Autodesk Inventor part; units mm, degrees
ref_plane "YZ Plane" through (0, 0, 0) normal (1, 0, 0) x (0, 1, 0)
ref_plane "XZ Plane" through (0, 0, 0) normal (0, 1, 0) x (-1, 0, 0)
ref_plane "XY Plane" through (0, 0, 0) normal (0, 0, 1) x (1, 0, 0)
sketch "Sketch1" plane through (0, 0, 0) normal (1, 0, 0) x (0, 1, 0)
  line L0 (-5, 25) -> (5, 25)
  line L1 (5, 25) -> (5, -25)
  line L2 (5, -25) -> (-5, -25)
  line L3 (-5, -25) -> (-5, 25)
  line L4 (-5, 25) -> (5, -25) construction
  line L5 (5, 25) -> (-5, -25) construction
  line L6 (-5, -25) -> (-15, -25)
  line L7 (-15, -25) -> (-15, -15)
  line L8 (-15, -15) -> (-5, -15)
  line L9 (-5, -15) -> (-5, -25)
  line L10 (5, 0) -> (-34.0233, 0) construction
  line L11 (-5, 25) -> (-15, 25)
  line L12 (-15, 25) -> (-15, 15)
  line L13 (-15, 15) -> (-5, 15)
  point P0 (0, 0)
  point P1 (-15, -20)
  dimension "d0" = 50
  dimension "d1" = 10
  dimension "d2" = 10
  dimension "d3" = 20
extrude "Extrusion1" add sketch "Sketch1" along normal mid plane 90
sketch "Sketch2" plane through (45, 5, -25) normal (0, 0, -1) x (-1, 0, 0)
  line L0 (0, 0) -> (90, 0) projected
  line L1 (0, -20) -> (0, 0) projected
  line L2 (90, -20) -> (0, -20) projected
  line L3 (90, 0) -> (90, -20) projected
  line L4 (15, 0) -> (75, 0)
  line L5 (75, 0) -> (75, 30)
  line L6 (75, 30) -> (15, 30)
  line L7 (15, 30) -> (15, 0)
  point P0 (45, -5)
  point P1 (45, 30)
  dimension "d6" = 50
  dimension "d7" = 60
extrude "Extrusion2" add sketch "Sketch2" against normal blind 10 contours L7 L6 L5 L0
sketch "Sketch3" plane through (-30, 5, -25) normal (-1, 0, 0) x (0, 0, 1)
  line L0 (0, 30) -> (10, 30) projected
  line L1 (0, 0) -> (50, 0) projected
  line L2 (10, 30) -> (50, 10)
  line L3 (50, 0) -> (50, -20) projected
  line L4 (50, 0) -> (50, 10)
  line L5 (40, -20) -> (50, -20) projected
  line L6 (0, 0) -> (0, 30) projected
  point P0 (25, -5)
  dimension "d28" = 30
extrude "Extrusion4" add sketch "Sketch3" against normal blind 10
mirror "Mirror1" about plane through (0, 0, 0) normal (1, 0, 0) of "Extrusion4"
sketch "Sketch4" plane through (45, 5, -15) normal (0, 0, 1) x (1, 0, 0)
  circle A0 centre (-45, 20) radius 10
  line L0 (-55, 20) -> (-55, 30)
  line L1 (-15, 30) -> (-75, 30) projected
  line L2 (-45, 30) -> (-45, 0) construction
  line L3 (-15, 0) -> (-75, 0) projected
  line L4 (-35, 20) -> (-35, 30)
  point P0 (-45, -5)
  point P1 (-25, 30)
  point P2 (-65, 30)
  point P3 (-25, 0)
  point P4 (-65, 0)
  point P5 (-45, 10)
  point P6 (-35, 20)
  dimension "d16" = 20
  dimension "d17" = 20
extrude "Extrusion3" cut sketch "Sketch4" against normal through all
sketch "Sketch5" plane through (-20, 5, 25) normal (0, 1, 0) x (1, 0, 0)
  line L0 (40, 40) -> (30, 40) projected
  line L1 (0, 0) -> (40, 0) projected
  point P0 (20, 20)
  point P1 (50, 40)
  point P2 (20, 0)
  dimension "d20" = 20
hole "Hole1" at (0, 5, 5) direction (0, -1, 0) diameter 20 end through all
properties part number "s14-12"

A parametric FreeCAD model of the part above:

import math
import FreeCAD as App
import Part
import Sketcher


def add_polygon(sketch, points):
    """Adds a closed chain of lines whose ends are joined by coincident constraints."""
    first, n = sketch.GeometryCount, len(points)
    for a, b in zip(points, points[1:] + points[:1]):
        sketch.addGeometry(Part.LineSegment(App.Vector(*a, 0), App.Vector(*b, 0)), False)
    for i in range(n):
        sketch.addConstraint(Sketcher.Constraint("Coincident", first + i, 2, first + (i + 1) % n, 1))

doc = App.newDocument("Part")
body = doc.addObject("PartDesign::Body", "Body")

# Sketch on YZ plane
sketch1 = body.newObject("Sketcher::SketchObject", "Sketch")
sketch1.AttachmentSupport = (doc.getObject("YZ_Plane"), [""])
sketch1.MapMode = "FlatFace"
add_polygon(sketch1, [(5, 25), (-15, 25), (-15, 15), (-5, 15), (-5, -15), (-15, -15), (-15, -25), (5, -25)])  # lines 0-7
sketch1.addConstraint([
    Sketcher.Constraint("Horizontal", 0),
    Sketcher.Constraint("Vertical", 1),
    Sketcher.Constraint("Horizontal", 2),
    Sketcher.Constraint("Vertical", 3),
    Sketcher.Constraint("Horizontal", 4),
    Sketcher.Constraint("Vertical", 5),
    Sketcher.Constraint("Horizontal", 6),
    Sketcher.Constraint("Vertical", 7),
    Sketcher.Constraint("Symmetric", 1, 2, 4, 2, -1),
    Sketcher.Constraint("Equal", 4, 1),
    Sketcher.Constraint("Equal", 1, 5),
    Sketcher.Constraint("DistanceX", 0, 2, 0, 1, 20.0),
    Sketcher.Constraint("DistanceX", 2, 1, 2, 2, 10.0),
    Sketcher.Constraint("DistanceY", 7, 1, 7, 2, 50.0),
    Sketcher.Constraint("DistanceX", 0, 2, -1, 1, 15.0),
])
pad1 = body.newObject("PartDesign::Pad", "Pad")
pad1.Profile = sketch1
pad1.Length = 90
pad1.Midplane = True

# Sketch on XY plane
sketch2 = body.newObject("Sketcher::SketchObject", "Sketch001")
sketch2.AttachmentSupport = (doc.getObject("XY_Plane"), [""])
sketch2.MapMode = "FlatFace"
sketch2.AttachmentOffset = App.Placement(App.Vector(0, 0, -25), App.Rotation())
add_polygon(sketch2, [(30, 35), (30, 5), (-30, 5), (-30, 35)])  # lines 0-3
sketch2.addConstraint([
    Sketcher.Constraint("Vertical", 0),
    Sketcher.Constraint("Horizontal", 1),
    Sketcher.Constraint("Vertical", 2),
    Sketcher.Constraint("Horizontal", 3),
    Sketcher.Constraint("DistanceX", 1, 2, 1, 1, 60.0),
    Sketcher.Constraint("DistanceY", 0, 2, 0, 1, 30.0),
    Sketcher.Constraint("DistanceX", -1, 1, 0, 2, 30.0),
    Sketcher.Constraint("DistanceY", -1, 1, 0, 2, 5.0),
])
pad2 = body.newObject("PartDesign::Pad", "Pad001")
pad2.Profile = sketch2
pad2.Length = 10

# Sketch on YZ plane
sketch3 = body.newObject("Sketcher::SketchObject", "Sketch002")
sketch3.AttachmentSupport = (doc.getObject("YZ_Plane"), [""])
sketch3.MapMode = "FlatFace"
sketch3.AttachmentOffset = App.Placement(App.Vector(0, 0, -30), App.Rotation())
add_polygon(sketch3, [(35, -15), (35, -25), (5, -25), (5, 25), (15, 25)])  # lines 0-4
sketch3.addConstraint([
    Sketcher.Constraint("Vertical", 0),
    Sketcher.Constraint("Horizontal", 1),
    Sketcher.Constraint("Vertical", 2),
    Sketcher.Constraint("Horizontal", 3),
    Sketcher.Constraint("Equal", 3, 0),
    Sketcher.Constraint("DistanceX", 1, 2, 1, 1, 30.0),
    Sketcher.Constraint("DistanceX", 3, 1, 3, 2, 10.0),
    Sketcher.Constraint("DistanceY", 2, 1, 2, 2, 50.0),
    Sketcher.Constraint("DistanceX", -1, 1, 0, 2, 35.0),
    Sketcher.Constraint("DistanceY", 0, 2, -1, 1, 25.0),
])
pad3 = body.newObject("PartDesign::Pad", "Pad002")
pad3.Profile = sketch3
pad3.Length = 10
doc.recompute()

mirrored = body.newObject("PartDesign::Mirrored", "Mirrored")
mirrored.Originals = [pad3]
mirrored.MirrorPlane = (doc.getObject("YZ_Plane"), [""])
body.Tip = mirrored

# Sketch on XY plane
sketch4 = body.newObject("Sketcher::SketchObject", "Sketch003")
sketch4.AttachmentSupport = (doc.getObject("XY_Plane"), [""])
sketch4.MapMode = "FlatFace"
sketch4.AttachmentOffset = App.Placement(App.Vector(0, 0, -15), App.Rotation())
sketch4.addGeometry([
    Part.ArcOfCircle(Part.Circle(App.Vector(0, 25, 0), App.Vector(0, 0, 1), 10), math.radians(180), math.radians(360)),
    Part.LineSegment(App.Vector(10, 25, 0), App.Vector(10, 35, 0)),
    Part.LineSegment(App.Vector(10, 35, 0), App.Vector(-10, 35, 0)),
    Part.LineSegment(App.Vector(-10, 35, 0), App.Vector(-10, 25, 0)),
], False)
sketch4.addConstraint([
    Sketcher.Constraint("Tangent", 0, 2, 1, 1),
    Sketcher.Constraint("Coincident", 1, 2, 2, 1),
    Sketcher.Constraint("Coincident", 2, 2, 3, 1),
    Sketcher.Constraint("Tangent", 3, 2, 0, 1),
    Sketcher.Constraint("Vertical", 1),
    Sketcher.Constraint("Horizontal", 2),
    Sketcher.Constraint("Vertical", 3),
    Sketcher.Constraint("PointOnObject", 0, 3, -2),
    Sketcher.Constraint("Radius", 0, 10.0),
    Sketcher.Constraint("DistanceY", 1, 1, 1, 2, 10.0),
    Sketcher.Constraint("DistanceY", -1, 1, 0, 3, 25.0),
])
pocket1 = body.newObject("PartDesign::Pocket", "Pocket")
pocket1.Profile = sketch4
pocket1.Type = "ThroughAll"

# Sketch on XZ plane
sketch5 = body.newObject("Sketcher::SketchObject", "Sketch004")
sketch5.AttachmentSupport = (doc.getObject("XZ_Plane"), [""])
sketch5.MapMode = "FlatFace"
sketch5.AttachmentOffset = App.Placement(App.Vector(0, 0, -5), App.Rotation())
sketch5.addGeometry(Part.Circle(App.Vector(0, 5, 0), App.Vector(0, 0, 1), 10), False)
sketch5.addConstraint([
    Sketcher.Constraint("PointOnObject", 0, 3, -2),
    Sketcher.Constraint("Diameter", 0, 20.0),
    Sketcher.Constraint("DistanceY", -1, 1, 0, 3, 5.0),
])
doc.recompute()
hole = body.newObject("PartDesign::Hole", "Hole")
hole.Profile = sketch5
hole.ThreadType = "None"
hole.Diameter = 20
hole.DepthType = "ThroughAll"
hole.Reversed = True

doc.recompute()
